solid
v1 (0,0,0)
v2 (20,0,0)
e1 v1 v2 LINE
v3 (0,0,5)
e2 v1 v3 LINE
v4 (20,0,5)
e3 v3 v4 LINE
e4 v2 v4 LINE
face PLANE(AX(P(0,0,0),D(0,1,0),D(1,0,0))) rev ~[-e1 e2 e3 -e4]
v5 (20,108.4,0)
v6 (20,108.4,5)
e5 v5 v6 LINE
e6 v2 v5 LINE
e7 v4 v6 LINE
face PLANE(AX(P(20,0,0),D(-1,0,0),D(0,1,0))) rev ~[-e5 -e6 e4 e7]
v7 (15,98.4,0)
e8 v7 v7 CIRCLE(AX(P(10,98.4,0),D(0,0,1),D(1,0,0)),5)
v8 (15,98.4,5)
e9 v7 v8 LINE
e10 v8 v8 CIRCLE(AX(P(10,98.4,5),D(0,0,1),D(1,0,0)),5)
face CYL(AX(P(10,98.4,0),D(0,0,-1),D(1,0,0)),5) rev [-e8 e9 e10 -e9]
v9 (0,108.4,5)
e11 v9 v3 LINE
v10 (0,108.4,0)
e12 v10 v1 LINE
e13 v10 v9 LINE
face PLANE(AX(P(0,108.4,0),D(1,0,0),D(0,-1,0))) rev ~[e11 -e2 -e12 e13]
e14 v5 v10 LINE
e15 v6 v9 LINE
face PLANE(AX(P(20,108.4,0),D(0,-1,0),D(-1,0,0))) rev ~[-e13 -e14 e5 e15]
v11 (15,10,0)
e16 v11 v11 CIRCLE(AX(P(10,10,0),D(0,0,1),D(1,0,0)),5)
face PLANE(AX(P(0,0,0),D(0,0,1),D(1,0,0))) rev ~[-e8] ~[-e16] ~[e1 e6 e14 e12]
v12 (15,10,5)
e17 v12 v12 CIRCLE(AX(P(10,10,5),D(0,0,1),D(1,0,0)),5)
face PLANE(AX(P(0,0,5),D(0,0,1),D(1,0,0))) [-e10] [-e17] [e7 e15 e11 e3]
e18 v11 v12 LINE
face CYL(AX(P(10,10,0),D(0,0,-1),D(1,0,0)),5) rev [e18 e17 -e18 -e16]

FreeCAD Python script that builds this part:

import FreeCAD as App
import Part
import Sketcher
from FreeCAD import Vector
Q = App.Units.Quantity

doc = App.newDocument("Part")
params = doc.addObject("Spreadsheet::Sheet", "Params")
for row, (alias, value) in enumerate([
    ("sketch1_diameter", "10 mm"),
    ("sketch1_width", "20 mm"),
    ("sketch1_height", "108.4 mm"),
    ("pad1_length", "5 mm"),
], start=1):
    params.set(f"A{row}", alias)
    params.set(f"B{row}", "=" + value)
    params.setAlias(f"B{row}", alias)

body = doc.addObject("PartDesign::Body", "Body")

# Sketch on XY plane
sketch1 = body.newObject("Sketcher::SketchObject", "Sketch")
sketch1.AttachmentSupport = (doc.getObject("XY_Plane"), [""])
sketch1.MapMode = "FlatFace"
sketch1.addGeometry(Part.LineSegment(Vector(0, 108.4, 0), Vector(0, 0, 0)), False)
sketch1.addGeometry(Part.LineSegment(Vector(0, 0, 0), Vector(20, 0, 0)), False)
sketch1.addGeometry(Part.LineSegment(Vector(20, 0, 0), Vector(20, 108.4, 0)), False)
sketch1.addGeometry(Part.LineSegment(Vector(20, 108.4, 0), Vector(0, 108.4, 0)), False)
sketch1.addGeometry(Part.Circle(Vector(10, 10, 0), Vector(0, 0, 1), 5), False)
sketch1.addGeometry(Part.Circle(Vector(10, 98.4, 0), Vector(0, 0, 1), 5), False)
sketch1.addConstraint(Sketcher.Constraint("Coincident", 0, 2, 1, 1))
sketch1.addConstraint(Sketcher.Constraint("Coincident", 1, 2, 2, 1))
sketch1.addConstraint(Sketcher.Constraint("Coincident", 2, 2, 3, 1))
sketch1.addConstraint(Sketcher.Constraint("Coincident", 3, 2, 0, 1))
sketch1.addConstraint(Sketcher.Constraint("Vertical", 0))
sketch1.addConstraint(Sketcher.Constraint("Horizontal", 1))
sketch1.addConstraint(Sketcher.Constraint("Vertical", 2))
sketch1.addConstraint(Sketcher.Constraint("Horizontal", 3))
sketch1.addConstraint(Sketcher.Constraint("Coincident", 0, 2, -1, 1))
sketch1.addConstraint(Sketcher.Constraint("Equal", 4, 5))
sketch1.addConstraint(Sketcher.Constraint("Vertical", 4, 3, 5, 3))
sketch1.addConstraint(Sketcher.Constraint("Diameter", 4, Q("10 mm")))
sketch1.addConstraint(Sketcher.Constraint("DistanceX", 1, 1, 1, 2, Q("20 mm")))
sketch1.addConstraint(Sketcher.Constraint("DistanceY", 0, 2, 0, 1, Q("108.4 mm")))
sketch1.addConstraint(Sketcher.Constraint("DistanceX", -1, 1, 4, 3, Q("10 mm")))
sketch1.addConstraint(Sketcher.Constraint("DistanceY", -1, 1, 4, 3, Q("10 mm")))
sketch1.addConstraint(Sketcher.Constraint("DistanceY", 5, 3, 2, 2, Q("10 mm")))
sketch1.setExpression("Constraints[11]", "Params.sketch1_diameter")
sketch1.setExpression("Constraints[12]", "Params.sketch1_width")
sketch1.setExpression("Constraints[13]", "Params.sketch1_height")
pad1 = body.newObject("PartDesign::Pad", "Pad")
pad1.Profile = sketch1
pad1.setExpression("Length", "Params.pad1_length")

doc.recompute()
